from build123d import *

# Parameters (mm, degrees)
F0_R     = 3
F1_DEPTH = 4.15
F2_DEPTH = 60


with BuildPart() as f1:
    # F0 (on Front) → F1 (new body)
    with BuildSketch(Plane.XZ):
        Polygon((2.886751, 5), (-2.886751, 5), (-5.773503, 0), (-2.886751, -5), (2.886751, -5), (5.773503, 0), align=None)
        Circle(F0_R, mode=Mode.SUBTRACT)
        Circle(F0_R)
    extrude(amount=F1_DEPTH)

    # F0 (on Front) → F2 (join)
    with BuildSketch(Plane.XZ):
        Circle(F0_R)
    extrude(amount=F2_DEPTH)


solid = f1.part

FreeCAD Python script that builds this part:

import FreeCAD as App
import Part
import Sketcher

V = App.Vector
Q = App.Units.Quantity


def add_polygon(sketch, points):
    """Adds a closed chain of lines whose ends are joined by coincident constraints."""
    first, n = sketch.GeometryCount, len(points)
    for a, b in zip(points, points[1:] + points[:1]):
        sketch.addGeometry(Part.LineSegment(App.Vector(*a, 0), App.Vector(*b, 0)), False)
    for i in range(n):
        sketch.addConstraint(Sketcher.Constraint("Coincident", first + i, 2, first + (i + 1) % n, 1))

doc = App.newDocument("Part")
body = doc.addObject("PartDesign::Body", "Body")

sketch1 = body.newObject("Sketcher::SketchObject", "Sketch")
sketch1.AttachmentSupport = (doc.getObject("XZ_Plane"), [""])
sketch1.MapMode = "FlatFace"
add_polygon(sketch1, [(2.886751, 5), (-2.886751, 5), (-5.773503, 0), (-2.886751, -5), (2.886751, -5), (5.773503, 0)])
sketch1.addConstraint([
    Sketcher.Constraint("Horizontal", 0),
    Sketcher.Constraint("Horizontal", 3),
    Sketcher.Constraint("Symmetric", 0, 2, 3, 2, -1, 1),
    Sketcher.Constraint("Symmetric", 1, 2, 4, 2, -1, 1),
    Sketcher.Constraint("PointOnObject", 1, 2, -1),
    Sketcher.Constraint("Parallel", 2, 5),
    Sketcher.Constraint("Vertical", 0, 2, 2, 2),
    Sketcher.Constraint("Angle", 1, Q("-120.000006 deg")),
    Sketcher.Constraint("DistanceY", -1, 1, 0, 2, 5.0),
    Sketcher.Constraint("DistanceX", 0, 2, 0, 1, 5.773502),
])
pad1 = body.newObject("PartDesign::Pad", "Pad")
pad1.Profile = sketch1
pad1.Length = 4.15

sketch2 = body.newObject("Sketcher::SketchObject", "Sketch001")
sketch2.AttachmentSupport = (doc.getObject("XZ_Plane"), [""])
sketch2.MapMode = "FlatFace"
sketch2.addGeometry(Part.Circle(V(0, 0, 0), V(0, 0, 1), 3), False)
sketch2.addConstraint([
    Sketcher.Constraint("Coincident", 0, 3, -1, 1),
    Sketcher.Constraint("Diameter", 0, 6.0),
])
pad2 = body.newObject("PartDesign::Pad", "Pad001")
pad2.Profile = sketch2
pad2.Length = 60

doc.recompute()
